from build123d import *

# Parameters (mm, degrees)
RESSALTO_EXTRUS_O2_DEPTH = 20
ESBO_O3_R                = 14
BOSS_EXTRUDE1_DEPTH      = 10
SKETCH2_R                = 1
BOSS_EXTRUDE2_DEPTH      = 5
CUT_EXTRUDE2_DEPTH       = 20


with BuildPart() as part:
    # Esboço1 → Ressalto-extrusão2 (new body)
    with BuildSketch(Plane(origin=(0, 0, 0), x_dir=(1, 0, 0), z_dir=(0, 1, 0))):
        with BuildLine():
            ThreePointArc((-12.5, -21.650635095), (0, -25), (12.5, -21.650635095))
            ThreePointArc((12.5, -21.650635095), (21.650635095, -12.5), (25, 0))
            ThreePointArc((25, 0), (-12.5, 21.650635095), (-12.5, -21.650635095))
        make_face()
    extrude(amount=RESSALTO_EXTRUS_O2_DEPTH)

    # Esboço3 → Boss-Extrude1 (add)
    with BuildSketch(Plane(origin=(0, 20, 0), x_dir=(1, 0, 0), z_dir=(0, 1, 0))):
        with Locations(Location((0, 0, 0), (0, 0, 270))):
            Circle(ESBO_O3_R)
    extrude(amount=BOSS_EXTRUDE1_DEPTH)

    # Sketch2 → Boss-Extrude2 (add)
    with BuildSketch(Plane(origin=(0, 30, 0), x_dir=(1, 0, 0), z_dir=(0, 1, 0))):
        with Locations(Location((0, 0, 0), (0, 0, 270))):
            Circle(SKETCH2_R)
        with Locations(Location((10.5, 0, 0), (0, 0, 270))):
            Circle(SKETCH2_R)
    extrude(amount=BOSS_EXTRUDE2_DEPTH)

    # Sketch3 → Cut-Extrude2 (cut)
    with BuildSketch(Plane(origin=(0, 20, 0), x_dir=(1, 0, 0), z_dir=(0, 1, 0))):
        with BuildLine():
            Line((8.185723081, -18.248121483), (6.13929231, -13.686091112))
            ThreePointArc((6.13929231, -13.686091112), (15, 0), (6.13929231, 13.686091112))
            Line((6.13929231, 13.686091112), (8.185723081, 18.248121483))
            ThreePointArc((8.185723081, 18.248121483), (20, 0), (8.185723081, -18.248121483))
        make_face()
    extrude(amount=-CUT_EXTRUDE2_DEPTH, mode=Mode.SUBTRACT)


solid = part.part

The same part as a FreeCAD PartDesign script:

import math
import FreeCAD as App
import Part
import Sketcher
from FreeCAD import Vector
Q = App.Units.Quantity

doc = App.newDocument("Part")
params = doc.addObject("Spreadsheet::Sheet", "Params")
for row, (alias, value) in enumerate([
    ("sketch1_radius", "25 mm"),
    ("pad1_length", "20 mm"),
    ("sketch2_diameter", "28 mm"),
    ("pad2_length", "10 mm"),
    ("sketch3_diameter", "2 mm"),
    ("pad3_length", "5 mm"),
    ("sketch4_radius", "20 mm"),
    ("sketch4_radius2", "15 mm"),
    ("pocket1_length", "20 mm"),
], start=1):
    params.set(f"A{row}", alias)
    params.set(f"B{row}", "=" + value)
    params.setAlias(f"B{row}", alias)

body = doc.addObject("PartDesign::Body", "Body")

# Sketch on XZ plane
sketch1 = body.newObject("Sketcher::SketchObject", "Sketch")
sketch1.AttachmentSupport = (doc.getObject("XZ_Plane"), [""])
sketch1.MapMode = "FlatFace"
sketch1.addGeometry(Part.ArcOfCircle(Part.Circle(Vector(0, 0, 0), Vector(0, 0, 1), 25), math.radians(60), math.radians(120)), False)
sketch1.addGeometry(Part.ArcOfCircle(Part.Circle(Vector(0, 0, 0), Vector(0, 0, 1), 25), math.radians(0), math.radians(60)), False)
sketch1.addGeometry(Part.ArcOfCircle(Part.Circle(Vector(0, 0, 0), Vector(0, 0, 1), 25), math.radians(120), math.radians(360)), False)
sketch1.addConstraint(Sketcher.Constraint("Tangent", 0, 1, 1, 2))
sketch1.addConstraint(Sketcher.Constraint("Tangent", 1, 1, 2, 2))
sketch1.addConstraint(Sketcher.Constraint("Tangent", 2, 1, 0, 2))
sketch1.addConstraint(Sketcher.Constraint("Coincident", 0, 3, -1, 1))
sketch1.addConstraint(Sketcher.Constraint("PointOnObject", 1, 1, -1))
sketch1.addConstraint(Sketcher.Constraint("Horizontal", 0, 1, 2, 1))
sketch1.addConstraint(Sketcher.Constraint("Radius", 0, 25.0))
sketch1.addConstraint(Sketcher.Constraint("DistanceX", 2, 1, 0, 1, 25.0))
sketch1.setExpression("Constraints[6]", "Params.sketch1_radius")
pad1 = body.newObject("PartDesign::Pad", "Pad")
pad1.Profile = sketch1
pad1.setExpression("Length", "Params.pad1_length")
pad1.Reversed = True

# Sketch on XZ plane
sketch2 = body.newObject("Sketcher::SketchObject", "Sketch001")
sketch2.AttachmentSupport = (doc.getObject("XZ_Plane"), [""])
sketch2.MapMode = "FlatFace"
sketch2.AttachmentOffset = App.Placement(Vector(0, 0, -20), App.Rotation())
sketch2.addGeometry(Part.Circle(Vector(0, 0, 0), Vector(0, 0, 1), 14), False)
sketch2.addConstraint(Sketcher.Constraint("Coincident", 0, 3, -1, 1))
sketch2.addConstraint(Sketcher.Constraint("Diameter", 0, 28.0))
sketch2.setExpression("Constraints[1]", "Params.sketch2_diameter")
pad2 = body.newObject("PartDesign::Pad", "Pad001")
pad2.Profile = sketch2
pad2.setExpression("Length", "Params.pad2_length")
pad2.Reversed = True

# Sketch on XZ plane
sketch3 = body.newObject("Sketcher::SketchObject", "Sketch002")
sketch3.AttachmentSupport = (doc.getObject("XZ_Plane"), [""])
sketch3.MapMode = "FlatFace"
sketch3.AttachmentOffset = App.Placement(Vector(0, 0, -30), App.Rotation())
sketch3.addGeometry(Part.Circle(Vector(0, 0, 0), Vector(0, 0, 1), 1), False)
sketch3.addGeometry(Part.Circle(Vector(10.5, 0, 0), Vector(0, 0, 1), 1), False)
sketch3.addConstraint(Sketcher.Constraint("Coincident", 0, 3, -1, 1))
sketch3.addConstraint(Sketcher.Constraint("Equal", 0, 1))
sketch3.addConstraint(Sketcher.Constraint("PointOnObject", 1, 3, -1))
sketch3.addConstraint(Sketcher.Constraint("Diameter", 0, 2.0))
sketch3.addConstraint(Sketcher.Constraint("DistanceX", -1, 1, 1, 3, 10.5))
sketch3.setExpression("Constraints[3]", "Params.sketch3_diameter")
pad3 = body.newObject("PartDesign::Pad", "Pad002")
pad3.Profile = sketch3
pad3.setExpression("Length", "Params.pad3_length")
pad3.Reversed = True

# Sketch on XZ plane
sketch4 = body.newObject("Sketcher::SketchObject", "Sketch003")
sketch4.AttachmentSupport = (doc.getObject("XZ_Plane"), [""])
sketch4.MapMode = "FlatFace"
sketch4.AttachmentOffset = App.Placement(Vector(0, 0, -20), App.Rotation())
sketch4.addGeometry(Part.LineSegment(Vector(6.139292, 13.686091, 0), Vector(8.185723, 18.248121, 0)), False)
sketch4.addGeometry(Part.ArcOfCircle(Part.Circle(Vector(0, 0, 0), Vector(0, 0, 1), 20), math.radians(-65.84), math.radians(65.84)), False)
sketch4.addGeometry(Part.LineSegment(Vector(8.185723, -18.248121, 0), Vector(6.139292, -13.686091, 0)), False)
sketch4.addGeometry(Part.ArcOfCircle(Part.Circle(Vector(0, 0, 0), Vector(0, 0, 1), 15), math.radians(-65.84), math.radians(65.84)), False)
sketch4.addConstraint(Sketcher.Constraint("Coincident", 0, 2, 1, 2))
sketch4.addConstraint(Sketcher.Constraint("Coincident", 1, 1, 2, 1))
sketch4.addConstraint(Sketcher.Constraint("Coincident", 2, 2, 3, 1))
sketch4.addConstraint(Sketcher.Constraint("Coincident", 3, 2, 0, 1))
sketch4.addConstraint(Sketcher.Constraint("Coincident", 1, 3, -1, 1))
sketch4.addConstraint(Sketcher.Constraint("Coincident", 3, 3, -1, 1))
sketch4.addConstraint(Sketcher.Constraint("Vertical", 0, 2, 1, 1))
sketch4.addConstraint(Sketcher.Constraint("Vertical", 2, 2, 3, 2))
sketch4.addConstraint(Sketcher.Constraint("Radius", 1, 20.0))
sketch4.addConstraint(Sketcher.Constraint("Radius", 3, 15.0))
sketch4.addConstraint(Sketcher.Constraint("Angle", 0, Q("65.84 deg")))
sketch4.addConstraint(Sketcher.Constraint("DistanceY", -1, 1, 0, 2, 18.248121))
sketch4.setExpression("Constraints[8]", "Params.sketch4_radius")
sketch4.setExpression("Constraints[9]", "Params.sketch4_radius2")
pocket1 = body.newObject("PartDesign::Pocket", "Pocket")
pocket1.Profile = sketch4
pocket1.setExpression("Length", "Params.pocket1_length")
pocket1.Reversed = True

doc.recompute()
